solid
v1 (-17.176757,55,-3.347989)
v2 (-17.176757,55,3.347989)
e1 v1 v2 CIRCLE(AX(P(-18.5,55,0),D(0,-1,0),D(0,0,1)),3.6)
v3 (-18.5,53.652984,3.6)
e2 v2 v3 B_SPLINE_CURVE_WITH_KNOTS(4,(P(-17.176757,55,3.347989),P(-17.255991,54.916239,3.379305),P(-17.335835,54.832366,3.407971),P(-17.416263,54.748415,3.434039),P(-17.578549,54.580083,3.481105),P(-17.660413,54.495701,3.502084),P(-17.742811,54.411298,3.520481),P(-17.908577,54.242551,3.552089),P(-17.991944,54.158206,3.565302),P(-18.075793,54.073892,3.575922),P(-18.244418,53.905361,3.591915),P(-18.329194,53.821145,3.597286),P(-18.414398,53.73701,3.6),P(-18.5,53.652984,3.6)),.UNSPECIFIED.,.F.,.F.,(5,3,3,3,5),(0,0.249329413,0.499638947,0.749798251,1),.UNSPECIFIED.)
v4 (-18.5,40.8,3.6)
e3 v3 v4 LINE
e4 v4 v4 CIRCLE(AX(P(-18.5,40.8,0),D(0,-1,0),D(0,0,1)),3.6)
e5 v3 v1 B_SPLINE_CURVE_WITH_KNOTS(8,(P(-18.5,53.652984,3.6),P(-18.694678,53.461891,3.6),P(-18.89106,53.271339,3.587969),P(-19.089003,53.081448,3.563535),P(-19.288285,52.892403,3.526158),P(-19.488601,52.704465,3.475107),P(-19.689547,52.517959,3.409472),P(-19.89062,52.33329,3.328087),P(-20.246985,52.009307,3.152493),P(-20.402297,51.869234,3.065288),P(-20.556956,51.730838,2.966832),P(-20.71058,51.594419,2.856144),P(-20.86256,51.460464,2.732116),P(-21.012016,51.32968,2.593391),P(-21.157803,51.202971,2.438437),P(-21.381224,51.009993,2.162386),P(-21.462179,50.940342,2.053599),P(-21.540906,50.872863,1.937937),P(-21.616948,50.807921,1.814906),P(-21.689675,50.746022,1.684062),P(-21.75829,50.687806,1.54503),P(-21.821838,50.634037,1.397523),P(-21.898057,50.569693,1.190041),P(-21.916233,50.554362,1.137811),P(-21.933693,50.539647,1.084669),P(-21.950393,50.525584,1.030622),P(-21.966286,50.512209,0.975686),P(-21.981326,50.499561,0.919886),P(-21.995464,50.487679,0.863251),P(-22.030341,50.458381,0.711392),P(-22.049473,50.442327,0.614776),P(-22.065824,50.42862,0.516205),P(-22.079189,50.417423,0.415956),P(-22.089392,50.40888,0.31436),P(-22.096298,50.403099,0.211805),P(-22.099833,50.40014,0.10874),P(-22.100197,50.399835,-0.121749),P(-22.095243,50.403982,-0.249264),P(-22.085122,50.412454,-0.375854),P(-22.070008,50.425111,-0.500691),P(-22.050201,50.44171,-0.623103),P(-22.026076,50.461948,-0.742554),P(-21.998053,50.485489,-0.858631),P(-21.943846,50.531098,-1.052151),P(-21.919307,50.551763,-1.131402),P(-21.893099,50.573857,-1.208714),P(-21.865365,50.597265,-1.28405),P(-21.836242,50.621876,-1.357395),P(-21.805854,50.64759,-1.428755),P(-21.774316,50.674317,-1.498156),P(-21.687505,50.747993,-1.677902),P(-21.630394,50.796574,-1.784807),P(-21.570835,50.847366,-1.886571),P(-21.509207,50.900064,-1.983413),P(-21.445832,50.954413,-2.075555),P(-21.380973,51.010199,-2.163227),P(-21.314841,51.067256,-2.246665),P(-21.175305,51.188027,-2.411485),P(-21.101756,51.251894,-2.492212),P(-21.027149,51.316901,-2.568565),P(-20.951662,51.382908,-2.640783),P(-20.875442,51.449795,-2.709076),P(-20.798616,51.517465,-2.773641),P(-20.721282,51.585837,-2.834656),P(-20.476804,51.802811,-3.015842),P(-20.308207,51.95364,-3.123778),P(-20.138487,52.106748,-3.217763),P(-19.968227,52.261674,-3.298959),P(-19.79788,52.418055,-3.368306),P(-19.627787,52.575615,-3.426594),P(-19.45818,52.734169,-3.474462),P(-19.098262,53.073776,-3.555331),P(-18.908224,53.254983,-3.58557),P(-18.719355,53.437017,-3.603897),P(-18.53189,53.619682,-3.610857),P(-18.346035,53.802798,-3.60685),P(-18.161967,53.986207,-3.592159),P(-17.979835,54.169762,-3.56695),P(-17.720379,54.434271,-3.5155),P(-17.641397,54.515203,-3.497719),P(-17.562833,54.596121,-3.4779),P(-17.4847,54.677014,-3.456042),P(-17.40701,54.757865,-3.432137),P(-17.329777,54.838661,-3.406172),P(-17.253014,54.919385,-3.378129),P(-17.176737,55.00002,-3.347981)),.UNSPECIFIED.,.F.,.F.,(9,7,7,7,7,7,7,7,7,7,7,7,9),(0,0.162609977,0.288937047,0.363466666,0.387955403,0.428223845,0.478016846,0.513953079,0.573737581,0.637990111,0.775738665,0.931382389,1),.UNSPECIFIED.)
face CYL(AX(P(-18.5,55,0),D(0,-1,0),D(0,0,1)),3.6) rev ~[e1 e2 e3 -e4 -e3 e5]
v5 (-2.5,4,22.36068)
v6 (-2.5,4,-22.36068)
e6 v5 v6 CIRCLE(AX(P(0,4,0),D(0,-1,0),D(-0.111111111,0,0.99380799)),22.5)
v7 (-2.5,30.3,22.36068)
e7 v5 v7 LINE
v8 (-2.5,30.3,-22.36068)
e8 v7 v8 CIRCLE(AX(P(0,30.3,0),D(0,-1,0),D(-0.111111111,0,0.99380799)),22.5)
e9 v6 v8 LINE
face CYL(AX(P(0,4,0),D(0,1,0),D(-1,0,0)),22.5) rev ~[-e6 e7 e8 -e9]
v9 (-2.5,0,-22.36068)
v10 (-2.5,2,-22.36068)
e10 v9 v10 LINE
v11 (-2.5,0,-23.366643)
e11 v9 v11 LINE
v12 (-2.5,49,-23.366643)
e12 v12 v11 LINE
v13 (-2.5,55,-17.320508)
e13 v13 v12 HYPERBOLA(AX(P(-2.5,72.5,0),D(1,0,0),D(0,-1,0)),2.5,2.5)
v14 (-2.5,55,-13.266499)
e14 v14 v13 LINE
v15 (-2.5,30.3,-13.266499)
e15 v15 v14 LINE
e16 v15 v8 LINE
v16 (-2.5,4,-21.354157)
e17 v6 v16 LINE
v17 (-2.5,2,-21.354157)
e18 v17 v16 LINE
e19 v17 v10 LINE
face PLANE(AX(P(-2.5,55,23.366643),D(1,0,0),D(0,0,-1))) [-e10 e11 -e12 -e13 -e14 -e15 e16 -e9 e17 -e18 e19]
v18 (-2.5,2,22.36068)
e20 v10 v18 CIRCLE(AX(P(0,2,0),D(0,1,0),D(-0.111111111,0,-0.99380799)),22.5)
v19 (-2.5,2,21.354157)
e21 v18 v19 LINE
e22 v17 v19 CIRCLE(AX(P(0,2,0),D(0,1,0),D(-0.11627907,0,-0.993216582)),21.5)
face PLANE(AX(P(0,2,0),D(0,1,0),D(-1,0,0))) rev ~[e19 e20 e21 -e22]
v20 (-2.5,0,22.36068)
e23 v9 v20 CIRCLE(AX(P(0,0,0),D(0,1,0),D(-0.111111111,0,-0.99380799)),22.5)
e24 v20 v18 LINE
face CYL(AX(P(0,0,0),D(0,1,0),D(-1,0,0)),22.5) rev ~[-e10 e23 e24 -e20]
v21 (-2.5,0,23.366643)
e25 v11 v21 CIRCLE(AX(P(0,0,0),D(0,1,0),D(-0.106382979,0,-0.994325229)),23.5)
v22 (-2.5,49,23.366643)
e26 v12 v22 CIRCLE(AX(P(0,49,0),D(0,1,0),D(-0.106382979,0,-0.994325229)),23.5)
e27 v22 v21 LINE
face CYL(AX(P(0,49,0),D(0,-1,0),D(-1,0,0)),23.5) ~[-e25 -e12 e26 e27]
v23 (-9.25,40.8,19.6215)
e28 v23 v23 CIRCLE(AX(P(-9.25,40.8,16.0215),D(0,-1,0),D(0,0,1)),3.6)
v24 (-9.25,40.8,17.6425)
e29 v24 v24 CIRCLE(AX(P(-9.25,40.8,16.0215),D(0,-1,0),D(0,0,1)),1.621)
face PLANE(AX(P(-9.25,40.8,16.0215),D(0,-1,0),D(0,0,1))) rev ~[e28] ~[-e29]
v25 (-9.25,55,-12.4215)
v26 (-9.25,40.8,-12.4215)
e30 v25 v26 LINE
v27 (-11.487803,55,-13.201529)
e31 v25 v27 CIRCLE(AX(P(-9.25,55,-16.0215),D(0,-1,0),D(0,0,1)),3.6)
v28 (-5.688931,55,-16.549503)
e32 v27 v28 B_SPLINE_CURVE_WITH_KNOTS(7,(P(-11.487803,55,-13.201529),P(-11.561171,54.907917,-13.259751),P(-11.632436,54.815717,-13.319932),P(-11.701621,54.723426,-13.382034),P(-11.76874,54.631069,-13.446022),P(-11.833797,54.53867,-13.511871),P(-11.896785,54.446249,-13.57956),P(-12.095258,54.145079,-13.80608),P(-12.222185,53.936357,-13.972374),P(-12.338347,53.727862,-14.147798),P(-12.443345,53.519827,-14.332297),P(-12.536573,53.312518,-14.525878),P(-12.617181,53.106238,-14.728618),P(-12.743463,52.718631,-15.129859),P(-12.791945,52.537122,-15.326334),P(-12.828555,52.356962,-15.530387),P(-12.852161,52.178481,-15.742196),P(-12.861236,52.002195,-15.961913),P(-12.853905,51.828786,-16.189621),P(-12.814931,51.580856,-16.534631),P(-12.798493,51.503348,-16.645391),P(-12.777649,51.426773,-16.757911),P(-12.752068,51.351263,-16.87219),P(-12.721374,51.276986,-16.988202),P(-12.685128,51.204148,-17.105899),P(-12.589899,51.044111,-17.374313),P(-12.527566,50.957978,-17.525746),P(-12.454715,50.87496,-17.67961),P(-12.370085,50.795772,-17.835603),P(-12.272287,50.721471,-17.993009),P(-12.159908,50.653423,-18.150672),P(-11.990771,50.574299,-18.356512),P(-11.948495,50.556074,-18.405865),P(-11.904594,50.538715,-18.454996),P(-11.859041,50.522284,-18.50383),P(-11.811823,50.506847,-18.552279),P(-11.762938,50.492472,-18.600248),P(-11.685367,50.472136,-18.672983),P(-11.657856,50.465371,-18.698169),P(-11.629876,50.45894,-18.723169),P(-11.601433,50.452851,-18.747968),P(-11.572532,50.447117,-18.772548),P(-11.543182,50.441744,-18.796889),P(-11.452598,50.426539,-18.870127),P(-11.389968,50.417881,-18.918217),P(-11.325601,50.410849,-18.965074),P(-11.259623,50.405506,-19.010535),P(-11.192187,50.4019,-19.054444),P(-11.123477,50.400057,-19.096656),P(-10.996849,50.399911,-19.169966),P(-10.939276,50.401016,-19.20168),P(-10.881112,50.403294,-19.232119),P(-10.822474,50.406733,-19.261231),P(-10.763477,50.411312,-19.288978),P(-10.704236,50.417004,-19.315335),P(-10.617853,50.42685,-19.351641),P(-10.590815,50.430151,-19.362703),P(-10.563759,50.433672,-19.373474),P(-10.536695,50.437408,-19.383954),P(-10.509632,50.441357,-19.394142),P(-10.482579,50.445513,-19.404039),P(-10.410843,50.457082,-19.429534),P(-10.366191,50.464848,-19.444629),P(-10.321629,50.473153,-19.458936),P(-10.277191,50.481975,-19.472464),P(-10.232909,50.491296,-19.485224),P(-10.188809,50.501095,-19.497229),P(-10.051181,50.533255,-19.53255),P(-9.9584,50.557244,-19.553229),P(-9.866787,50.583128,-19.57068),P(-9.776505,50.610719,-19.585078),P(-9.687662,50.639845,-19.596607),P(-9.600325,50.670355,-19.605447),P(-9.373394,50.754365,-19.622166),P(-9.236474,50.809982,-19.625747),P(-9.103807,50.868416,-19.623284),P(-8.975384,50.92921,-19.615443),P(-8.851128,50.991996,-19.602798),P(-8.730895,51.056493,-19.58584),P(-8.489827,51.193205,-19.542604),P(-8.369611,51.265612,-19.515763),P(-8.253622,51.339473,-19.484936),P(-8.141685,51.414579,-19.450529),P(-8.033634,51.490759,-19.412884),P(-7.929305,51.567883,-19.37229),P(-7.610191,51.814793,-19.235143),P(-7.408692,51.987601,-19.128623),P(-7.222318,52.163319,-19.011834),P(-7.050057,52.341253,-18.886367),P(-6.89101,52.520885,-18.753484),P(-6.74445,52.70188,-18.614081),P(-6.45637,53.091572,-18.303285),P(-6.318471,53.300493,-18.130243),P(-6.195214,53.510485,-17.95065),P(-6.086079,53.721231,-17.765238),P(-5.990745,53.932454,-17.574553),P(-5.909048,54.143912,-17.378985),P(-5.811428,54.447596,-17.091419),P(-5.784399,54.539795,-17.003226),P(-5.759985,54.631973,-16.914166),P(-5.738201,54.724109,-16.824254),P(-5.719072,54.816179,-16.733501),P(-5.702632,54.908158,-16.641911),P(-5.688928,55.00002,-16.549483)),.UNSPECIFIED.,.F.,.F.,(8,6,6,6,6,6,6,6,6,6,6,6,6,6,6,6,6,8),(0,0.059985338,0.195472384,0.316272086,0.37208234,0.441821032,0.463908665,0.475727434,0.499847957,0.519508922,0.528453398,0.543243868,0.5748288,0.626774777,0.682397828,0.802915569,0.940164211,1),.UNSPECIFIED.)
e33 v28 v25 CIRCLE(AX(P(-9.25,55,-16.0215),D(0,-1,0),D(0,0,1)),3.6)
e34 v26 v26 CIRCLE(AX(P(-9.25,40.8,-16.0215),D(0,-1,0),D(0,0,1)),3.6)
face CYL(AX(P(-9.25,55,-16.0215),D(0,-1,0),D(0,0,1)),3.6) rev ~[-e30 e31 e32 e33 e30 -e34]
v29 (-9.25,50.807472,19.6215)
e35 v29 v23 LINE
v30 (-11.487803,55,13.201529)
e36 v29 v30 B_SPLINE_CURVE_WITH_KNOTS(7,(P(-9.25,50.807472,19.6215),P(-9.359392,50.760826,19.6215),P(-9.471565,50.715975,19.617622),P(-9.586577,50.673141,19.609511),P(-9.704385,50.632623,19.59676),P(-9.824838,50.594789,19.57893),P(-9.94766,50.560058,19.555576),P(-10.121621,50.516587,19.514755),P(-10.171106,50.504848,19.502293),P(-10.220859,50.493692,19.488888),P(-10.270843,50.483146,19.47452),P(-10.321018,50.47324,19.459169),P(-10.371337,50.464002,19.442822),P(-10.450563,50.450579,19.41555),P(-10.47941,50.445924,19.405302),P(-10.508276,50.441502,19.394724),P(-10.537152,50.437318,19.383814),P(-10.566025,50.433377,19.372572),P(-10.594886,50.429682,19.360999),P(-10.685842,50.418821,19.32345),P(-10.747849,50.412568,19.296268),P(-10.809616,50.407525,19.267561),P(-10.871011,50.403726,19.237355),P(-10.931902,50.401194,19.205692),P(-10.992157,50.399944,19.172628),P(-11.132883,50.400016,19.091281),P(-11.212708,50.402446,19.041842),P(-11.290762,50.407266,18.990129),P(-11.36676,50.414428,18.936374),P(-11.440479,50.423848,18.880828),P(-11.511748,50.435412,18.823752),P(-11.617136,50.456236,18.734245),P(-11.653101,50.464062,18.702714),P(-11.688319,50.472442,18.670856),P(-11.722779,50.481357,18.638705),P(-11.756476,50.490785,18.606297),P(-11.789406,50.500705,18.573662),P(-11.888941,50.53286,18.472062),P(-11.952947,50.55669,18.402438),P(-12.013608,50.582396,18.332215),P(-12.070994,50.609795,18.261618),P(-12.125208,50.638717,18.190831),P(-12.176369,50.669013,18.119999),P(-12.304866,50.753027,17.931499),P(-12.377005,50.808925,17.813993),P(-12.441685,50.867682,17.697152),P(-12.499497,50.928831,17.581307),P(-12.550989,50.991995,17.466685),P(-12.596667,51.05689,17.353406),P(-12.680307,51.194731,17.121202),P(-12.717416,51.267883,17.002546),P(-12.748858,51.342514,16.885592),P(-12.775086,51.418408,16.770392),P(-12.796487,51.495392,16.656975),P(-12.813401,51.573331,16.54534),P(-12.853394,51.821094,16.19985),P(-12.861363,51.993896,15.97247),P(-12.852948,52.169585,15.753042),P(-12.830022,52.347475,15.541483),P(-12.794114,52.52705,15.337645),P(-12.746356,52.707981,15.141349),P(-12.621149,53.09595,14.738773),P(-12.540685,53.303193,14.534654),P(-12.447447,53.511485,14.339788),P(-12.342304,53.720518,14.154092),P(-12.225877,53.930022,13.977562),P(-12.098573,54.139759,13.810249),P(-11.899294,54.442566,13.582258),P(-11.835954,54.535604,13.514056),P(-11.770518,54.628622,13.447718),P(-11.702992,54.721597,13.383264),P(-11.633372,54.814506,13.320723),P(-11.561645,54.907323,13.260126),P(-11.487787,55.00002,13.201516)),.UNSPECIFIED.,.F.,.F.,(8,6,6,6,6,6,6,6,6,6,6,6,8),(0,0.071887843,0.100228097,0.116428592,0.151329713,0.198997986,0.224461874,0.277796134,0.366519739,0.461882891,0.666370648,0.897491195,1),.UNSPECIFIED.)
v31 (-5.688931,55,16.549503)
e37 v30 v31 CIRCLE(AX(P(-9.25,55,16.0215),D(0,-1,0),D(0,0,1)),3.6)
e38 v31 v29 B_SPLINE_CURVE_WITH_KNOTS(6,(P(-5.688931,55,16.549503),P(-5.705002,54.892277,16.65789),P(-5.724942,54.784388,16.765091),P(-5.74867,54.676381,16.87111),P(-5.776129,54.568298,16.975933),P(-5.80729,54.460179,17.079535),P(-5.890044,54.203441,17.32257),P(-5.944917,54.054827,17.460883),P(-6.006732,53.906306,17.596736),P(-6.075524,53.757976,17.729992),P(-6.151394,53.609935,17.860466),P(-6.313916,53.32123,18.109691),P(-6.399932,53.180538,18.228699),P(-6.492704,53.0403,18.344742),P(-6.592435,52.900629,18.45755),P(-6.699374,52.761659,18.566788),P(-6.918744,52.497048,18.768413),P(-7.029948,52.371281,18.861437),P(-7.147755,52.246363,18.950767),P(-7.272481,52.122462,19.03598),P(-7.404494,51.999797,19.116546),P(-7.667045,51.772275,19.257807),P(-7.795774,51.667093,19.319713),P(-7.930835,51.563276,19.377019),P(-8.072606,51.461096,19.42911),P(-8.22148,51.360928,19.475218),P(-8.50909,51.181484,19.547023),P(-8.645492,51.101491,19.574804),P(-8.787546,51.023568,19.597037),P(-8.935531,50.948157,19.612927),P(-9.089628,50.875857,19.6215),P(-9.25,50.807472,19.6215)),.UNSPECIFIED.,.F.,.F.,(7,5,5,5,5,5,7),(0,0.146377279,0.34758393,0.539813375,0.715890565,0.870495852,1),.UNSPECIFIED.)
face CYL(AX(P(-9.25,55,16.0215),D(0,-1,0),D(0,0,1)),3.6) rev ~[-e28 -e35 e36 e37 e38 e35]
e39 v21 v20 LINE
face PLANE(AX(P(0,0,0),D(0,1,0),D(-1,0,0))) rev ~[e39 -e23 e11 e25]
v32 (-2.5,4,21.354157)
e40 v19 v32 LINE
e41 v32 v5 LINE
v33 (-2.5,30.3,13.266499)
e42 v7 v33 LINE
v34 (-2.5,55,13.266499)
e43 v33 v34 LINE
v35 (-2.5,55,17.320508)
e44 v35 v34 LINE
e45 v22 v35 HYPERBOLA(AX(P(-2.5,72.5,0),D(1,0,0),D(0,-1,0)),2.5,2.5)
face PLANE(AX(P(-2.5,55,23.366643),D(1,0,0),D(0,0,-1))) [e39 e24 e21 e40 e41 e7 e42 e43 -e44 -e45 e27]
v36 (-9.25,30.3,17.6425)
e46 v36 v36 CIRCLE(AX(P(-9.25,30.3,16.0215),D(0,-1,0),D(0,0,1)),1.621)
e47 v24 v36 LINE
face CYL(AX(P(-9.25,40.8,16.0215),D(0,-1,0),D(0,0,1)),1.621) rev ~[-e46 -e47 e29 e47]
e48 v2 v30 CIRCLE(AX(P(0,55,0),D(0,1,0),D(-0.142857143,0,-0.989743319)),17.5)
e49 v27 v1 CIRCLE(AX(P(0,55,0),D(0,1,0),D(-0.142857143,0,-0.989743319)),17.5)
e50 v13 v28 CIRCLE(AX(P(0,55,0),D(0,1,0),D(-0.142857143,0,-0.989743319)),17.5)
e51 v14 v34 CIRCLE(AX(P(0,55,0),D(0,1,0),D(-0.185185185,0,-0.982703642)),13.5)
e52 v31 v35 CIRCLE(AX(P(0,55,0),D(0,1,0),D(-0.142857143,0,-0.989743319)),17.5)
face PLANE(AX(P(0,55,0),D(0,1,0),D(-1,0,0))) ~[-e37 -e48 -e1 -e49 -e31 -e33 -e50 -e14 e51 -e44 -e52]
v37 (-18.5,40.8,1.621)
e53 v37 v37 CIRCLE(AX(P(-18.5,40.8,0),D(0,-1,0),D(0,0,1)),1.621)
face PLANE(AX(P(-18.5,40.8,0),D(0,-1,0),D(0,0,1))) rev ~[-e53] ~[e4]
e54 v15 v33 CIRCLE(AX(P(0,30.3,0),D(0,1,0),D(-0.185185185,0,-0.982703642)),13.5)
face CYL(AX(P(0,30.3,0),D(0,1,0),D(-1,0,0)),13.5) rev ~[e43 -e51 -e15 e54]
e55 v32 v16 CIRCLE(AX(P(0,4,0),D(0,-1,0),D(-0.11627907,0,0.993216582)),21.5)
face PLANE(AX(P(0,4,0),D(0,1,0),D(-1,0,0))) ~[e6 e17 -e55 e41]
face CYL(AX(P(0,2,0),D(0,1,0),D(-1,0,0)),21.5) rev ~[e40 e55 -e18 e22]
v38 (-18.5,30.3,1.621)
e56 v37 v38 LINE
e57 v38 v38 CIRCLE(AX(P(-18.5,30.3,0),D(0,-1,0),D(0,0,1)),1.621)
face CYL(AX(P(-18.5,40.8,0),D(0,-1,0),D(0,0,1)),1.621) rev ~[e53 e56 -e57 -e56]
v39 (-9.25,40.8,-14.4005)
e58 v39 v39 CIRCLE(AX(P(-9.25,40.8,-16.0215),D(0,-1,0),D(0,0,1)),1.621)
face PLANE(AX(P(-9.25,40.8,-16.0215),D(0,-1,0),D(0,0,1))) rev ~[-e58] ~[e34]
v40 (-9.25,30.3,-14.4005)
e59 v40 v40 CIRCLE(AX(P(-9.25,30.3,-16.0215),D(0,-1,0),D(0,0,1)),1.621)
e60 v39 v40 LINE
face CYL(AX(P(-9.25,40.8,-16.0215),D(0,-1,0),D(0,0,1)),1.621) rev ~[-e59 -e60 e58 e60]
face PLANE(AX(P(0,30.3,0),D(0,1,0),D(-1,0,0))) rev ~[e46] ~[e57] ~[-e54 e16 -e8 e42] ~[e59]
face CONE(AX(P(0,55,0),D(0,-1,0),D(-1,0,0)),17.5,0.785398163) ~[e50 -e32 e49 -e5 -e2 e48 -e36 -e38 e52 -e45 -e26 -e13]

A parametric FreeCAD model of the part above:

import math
import FreeCAD as App
import Part
import Sketcher
from FreeCAD import Vector


def add_polygon(sketch, points):
    """Adds a closed chain of lines whose ends are joined by coincident constraints."""
    first, n = sketch.GeometryCount, len(points)
    for a, b in zip(points, points[1:] + points[:1]):
        sketch.addGeometry(Part.LineSegment(App.Vector(*a, 0), App.Vector(*b, 0)), False)
    for i in range(n):
        sketch.addConstraint(Sketcher.Constraint("Coincident", first + i, 2, first + (i + 1) % n, 1))

doc = App.newDocument("Part")
body = doc.addObject("PartDesign::Body", "Body")

sketch1 = body.newObject("Sketcher::SketchObject", "Sketch")
sketch1.AttachmentSupport = (doc.getObject("XY_Plane"), [""])
sketch1.MapMode = "FlatFace"
add_polygon(sketch1, [(-22.5, 30.3), (-13.5, 30.3), (-13.5, 55), (-17.5, 55), (-23.5, 49), (-23.5, 0), (-22.5, 0), (-22.5, 2), (-21.5, 2), (-21.5, 4), (-22.5, 4)])
sketch1.addConstraint([
    Sketcher.Constraint("Horizontal", 0),
    Sketcher.Constraint("Vertical", 1),
    Sketcher.Constraint("Horizontal", 2),
    Sketcher.Constraint("Vertical", 4),
    Sketcher.Constraint("Horizontal", 5),
    Sketcher.Constraint("Vertical", 6),
    Sketcher.Constraint("Horizontal", 7),
    Sketcher.Constraint("Vertical", 8),
    Sketcher.Constraint("Horizontal", 9),
    Sketcher.Constraint("Vertical", 10),
    Sketcher.Constraint("PointOnObject", 4, 2, -1),
    Sketcher.Constraint("Vertical", 6, 2, 9, 2),
    Sketcher.Constraint("Equal", 5, 7),
    Sketcher.Constraint("Equal", 6, 8),
    Sketcher.Constraint("DistanceX", 5, 1, 5, 2, 1.0),
    Sketcher.Constraint("DistanceY", 4, 2, 4, 1, 49.0),
    Sketcher.Constraint("DistanceY", 6, 1, 6, 2, 2.0),
    Sketcher.Constraint("DistanceY", 1, 1, 1, 2, 24.7),
    Sketcher.Constraint("DistanceY", -1, 1, 1, 2, 55.0),
    Sketcher.Constraint("DistanceX", 0, 2, -1, 1, 13.5),
    Sketcher.Constraint("DistanceX", 3, 2, -1, 1, 23.5),
    Sketcher.Constraint("DistanceX", 2, 2, 2, 1, 4.0),
])
revolution = body.newObject("PartDesign::Revolution", "Revolution")
revolution.Profile = sketch1
revolution.ReferenceAxis = (sketch1, ["V_Axis"])
revolution.Angle = 360

sketch2 = body.newObject("Sketcher::SketchObject", "Sketch001")
sketch2.AttachmentSupport = (doc.getObject("XZ_Plane"), [""])
sketch2.MapMode = "FlatFace"
sketch2.AttachmentOffset = App.Placement(Vector(0, 0, -55), App.Rotation())
sketch2.addGeometry([
    Part.LineSegment(Vector(0, 23.5, 0), Vector(23.5, 23.5, 0)),
    Part.LineSegment(Vector(23.5, 23.5, 0), Vector(23.5, -23.5, 0)),
    Part.LineSegment(Vector(23.5, -23.5, 0), Vector(0, -23.5, 0)),
    Part.ArcOfCircle(Part.Circle(Vector(0, 0, 0), Vector(0, 0, 1), 23.5), math.radians(-96.11), math.radians(-90)),
    Part.LineSegment(Vector(-2.5, -23.4, 0), Vector(-2.5, 23.4, 0)),
    Part.ArcOfCircle(Part.Circle(Vector(0, 0, 0), Vector(0, 0, 1), 23.5), math.radians(90), math.radians(96.11)),
], False)
sketch2.addConstraint([
    Sketcher.Constraint("Coincident", 0, 2, 1, 1),
    Sketcher.Constraint("Coincident", 1, 2, 2, 1),
    Sketcher.Constraint("Tangent", 2, 2, 3, 2),
    Sketcher.Constraint("Coincident", 3, 1, 4, 1),
    Sketcher.Constraint("Coincident", 4, 2, 5, 2),
    Sketcher.Constraint("Tangent", 5, 1, 0, 1),
    Sketcher.Constraint("Horizontal", 0),
    Sketcher.Constraint("Vertical", 1),
    Sketcher.Constraint("Horizontal", 2),
    Sketcher.Constraint("Vertical", 4),
    Sketcher.Constraint("Coincident", 3, 3, -1, 1),
    Sketcher.Constraint("Coincident", 5, 3, -1, 1),
    Sketcher.Constraint("Equal", 3, 5),
    Sketcher.Constraint("DistanceX", 3, 1, -1, 1, 2.5),
    Sketcher.Constraint("Radius", 3, 23.5),
    Sketcher.Constraint("DistanceX", 0, 1, 0, 2, 23.5),
])
pocket1 = body.newObject("PartDesign::Pocket", "Pocket")
pocket1.Profile = sketch2
pocket1.Type = "ThroughAll"
pocket1.Reversed = True

sketch3 = body.newObject("Sketcher::SketchObject", "Sketch002")
sketch3.AttachmentSupport = (doc.getObject("XZ_Plane"), [""])
sketch3.MapMode = "FlatFace"
sketch3.AttachmentOffset = App.Placement(Vector(0, 0, -55), App.Rotation())
sketch3.addGeometry([
    Part.Circle(Vector(-18.5, 0, 0), Vector(0, 0, 1), 1.6),
    Part.Circle(Vector(-9.2, -16, 0), Vector(0, 0, 1), 1.6),
    Part.Circle(Vector(-9.2, 16, 0), Vector(0, 0, 1), 1.6),
], False)
sketch3.addConstraint([
    Sketcher.Constraint("Equal", 0, 1),
    Sketcher.Constraint("Equal", 1, 2),
    Sketcher.Constraint("Symmetric", 1, 3, 2, 3, -1),
    Sketcher.Constraint("PointOnObject", 0, 3, -1),
    Sketcher.Constraint("Diameter", 0, 3.242),
    Sketcher.Constraint("DistanceX", 0, 3, -1, 1, 18.5),
    Sketcher.Constraint("DistanceX", 1, 3, -1, 1, 9.25),
    Sketcher.Constraint("DistanceY", 1, 3, 2, 3, 32.043),
])
doc.recompute()
hole = body.newObject("PartDesign::Hole", "Hole")
hole.Profile = sketch3
hole.ThreadType = "None"
hole.Diameter = 3.242
hole.DepthType = "ThroughAll"
hole.HoleCutType = "Counterbore"
hole.HoleCutDiameter = 7.2
hole.HoleCutDepth = 14.2
hole.Reversed = True

doc.recompute()
